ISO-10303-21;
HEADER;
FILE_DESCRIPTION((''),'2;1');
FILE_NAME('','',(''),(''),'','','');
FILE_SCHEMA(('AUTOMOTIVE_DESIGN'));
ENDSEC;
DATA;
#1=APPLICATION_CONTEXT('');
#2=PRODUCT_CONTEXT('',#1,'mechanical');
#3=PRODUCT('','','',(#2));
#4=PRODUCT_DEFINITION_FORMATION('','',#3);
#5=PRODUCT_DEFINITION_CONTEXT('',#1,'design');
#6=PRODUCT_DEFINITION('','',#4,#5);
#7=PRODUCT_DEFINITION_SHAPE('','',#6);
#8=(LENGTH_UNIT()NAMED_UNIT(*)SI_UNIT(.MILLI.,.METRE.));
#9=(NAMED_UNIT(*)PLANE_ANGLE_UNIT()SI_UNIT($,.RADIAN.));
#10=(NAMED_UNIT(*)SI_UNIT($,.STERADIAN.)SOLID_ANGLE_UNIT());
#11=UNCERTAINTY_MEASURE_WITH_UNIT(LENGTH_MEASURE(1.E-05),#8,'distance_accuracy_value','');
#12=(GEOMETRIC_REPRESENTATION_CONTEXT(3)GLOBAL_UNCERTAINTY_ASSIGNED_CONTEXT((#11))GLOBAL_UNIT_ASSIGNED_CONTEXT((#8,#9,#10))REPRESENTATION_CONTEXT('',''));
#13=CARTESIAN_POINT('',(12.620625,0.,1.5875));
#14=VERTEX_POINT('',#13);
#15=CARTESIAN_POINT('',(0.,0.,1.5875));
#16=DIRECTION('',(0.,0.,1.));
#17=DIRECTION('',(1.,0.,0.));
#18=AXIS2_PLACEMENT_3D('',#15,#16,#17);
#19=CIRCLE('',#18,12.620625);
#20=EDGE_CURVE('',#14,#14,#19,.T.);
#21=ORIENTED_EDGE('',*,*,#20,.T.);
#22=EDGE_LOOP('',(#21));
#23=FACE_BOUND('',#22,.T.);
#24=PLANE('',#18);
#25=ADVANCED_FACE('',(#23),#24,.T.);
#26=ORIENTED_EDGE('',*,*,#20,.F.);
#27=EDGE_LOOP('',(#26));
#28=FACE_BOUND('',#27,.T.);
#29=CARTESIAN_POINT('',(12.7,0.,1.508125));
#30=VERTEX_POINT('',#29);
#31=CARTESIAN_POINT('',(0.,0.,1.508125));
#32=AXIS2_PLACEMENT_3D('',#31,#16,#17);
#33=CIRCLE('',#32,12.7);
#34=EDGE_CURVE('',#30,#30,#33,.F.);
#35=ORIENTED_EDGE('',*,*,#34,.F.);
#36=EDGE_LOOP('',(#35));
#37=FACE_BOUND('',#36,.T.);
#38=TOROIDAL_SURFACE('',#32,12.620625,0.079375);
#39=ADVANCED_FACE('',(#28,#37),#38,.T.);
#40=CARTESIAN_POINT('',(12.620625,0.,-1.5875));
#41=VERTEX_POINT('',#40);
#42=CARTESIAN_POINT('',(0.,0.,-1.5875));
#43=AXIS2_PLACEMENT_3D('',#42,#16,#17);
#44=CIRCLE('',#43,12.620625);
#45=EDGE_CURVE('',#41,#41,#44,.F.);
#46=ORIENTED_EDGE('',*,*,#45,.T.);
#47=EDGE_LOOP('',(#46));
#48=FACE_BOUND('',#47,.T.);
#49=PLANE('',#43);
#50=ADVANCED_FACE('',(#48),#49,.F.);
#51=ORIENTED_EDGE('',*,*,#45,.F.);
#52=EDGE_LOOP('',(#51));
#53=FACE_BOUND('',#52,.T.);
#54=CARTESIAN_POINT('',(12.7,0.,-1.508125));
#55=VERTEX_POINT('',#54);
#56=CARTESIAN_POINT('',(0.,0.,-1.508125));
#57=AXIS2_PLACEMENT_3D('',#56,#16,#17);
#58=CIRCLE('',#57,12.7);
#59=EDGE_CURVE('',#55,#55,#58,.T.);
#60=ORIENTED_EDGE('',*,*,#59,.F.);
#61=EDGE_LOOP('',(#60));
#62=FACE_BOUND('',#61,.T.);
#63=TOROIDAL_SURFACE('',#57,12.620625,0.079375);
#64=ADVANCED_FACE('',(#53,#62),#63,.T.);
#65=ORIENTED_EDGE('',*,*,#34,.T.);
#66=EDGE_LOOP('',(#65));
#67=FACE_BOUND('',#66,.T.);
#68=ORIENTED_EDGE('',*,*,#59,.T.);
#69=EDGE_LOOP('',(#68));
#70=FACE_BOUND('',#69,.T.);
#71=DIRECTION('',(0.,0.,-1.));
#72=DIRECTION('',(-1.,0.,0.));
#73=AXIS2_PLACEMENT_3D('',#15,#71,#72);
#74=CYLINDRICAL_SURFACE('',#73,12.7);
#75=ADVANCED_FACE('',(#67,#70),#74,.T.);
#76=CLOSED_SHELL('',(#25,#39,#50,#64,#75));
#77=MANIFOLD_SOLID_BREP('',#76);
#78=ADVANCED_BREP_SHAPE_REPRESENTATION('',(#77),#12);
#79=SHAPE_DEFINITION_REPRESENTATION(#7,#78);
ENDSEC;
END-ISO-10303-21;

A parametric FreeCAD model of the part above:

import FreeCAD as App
import Part
import Sketcher
Q = App.Units.Quantity


def edges_at(feature, points):
    """Names of the edges that pass closest to the given points."""
    edges = feature.Shape.Edges
    near = lambda p: min(range(len(edges)), key=lambda i: edges[i].distToShape(Part.Vertex(*p))[0])
    return sorted({f"Edge{near(p) + 1}" for p in points})

doc = App.newDocument("Part")
body = doc.addObject("PartDesign::Body", "Body")

# Sketch on XY plane
sketch1 = body.newObject("Sketcher::SketchObject", "Sketch")
sketch1.AttachmentSupport = (doc.getObject("XY_Plane"), [""])
sketch1.MapMode = "FlatFace"
sketch1.addGeometry(Part.Circle(App.Vector(0, 0, 0), App.Vector(0, 0, 1), 13), False)
sketch1.addConstraint([
    Sketcher.Constraint("Coincident", 0, 3, -1, 1),
    Sketcher.Constraint("Diameter", 0, Q("1 in")),
])
pad1 = body.newObject("PartDesign::Pad", "Pad")
pad1.Profile = sketch1
pad1.Type = "TwoLengths"
pad1.Length = Q("0.0625 in")
pad1.Length2 = Q("0.0625 in")
doc.recompute()

fillet = body.newObject("PartDesign::Fillet", "Fillet")
fillet.Base = (pad1, edges_at(pad1, [(-12.7, 0, -1.587), (-12.7, 0, 1.587)]))
fillet.Radius = 0.079375

doc.recompute()
